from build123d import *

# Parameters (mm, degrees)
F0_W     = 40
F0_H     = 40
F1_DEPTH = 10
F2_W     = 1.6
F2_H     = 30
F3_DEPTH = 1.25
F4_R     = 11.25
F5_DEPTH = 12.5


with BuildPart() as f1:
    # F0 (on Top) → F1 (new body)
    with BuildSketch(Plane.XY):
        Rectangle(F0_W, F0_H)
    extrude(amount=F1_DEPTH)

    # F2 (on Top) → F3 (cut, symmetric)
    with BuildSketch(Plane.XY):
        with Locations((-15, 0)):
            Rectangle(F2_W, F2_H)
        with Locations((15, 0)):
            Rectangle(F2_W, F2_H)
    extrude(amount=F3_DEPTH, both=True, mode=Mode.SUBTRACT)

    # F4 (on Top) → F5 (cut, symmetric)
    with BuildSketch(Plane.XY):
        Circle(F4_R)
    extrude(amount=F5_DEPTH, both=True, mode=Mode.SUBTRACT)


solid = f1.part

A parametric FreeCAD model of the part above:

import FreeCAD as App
import Part
import Sketcher

V = App.Vector
Q = App.Units.Quantity

doc = App.newDocument("Part")
body = doc.addObject("PartDesign::Body", "Body")

# Sketch on XY plane
sketch1 = body.newObject("Sketcher::SketchObject", "Sketch")
sketch1.AttachmentSupport = (doc.getObject("XY_Plane"), [""])
sketch1.MapMode = "FlatFace"
sketch1.addGeometry(Part.LineSegment(V(-20, 20, 0), V(-20, -20, 0)), False)
sketch1.addGeometry(Part.LineSegment(V(-20, -20, 0), V(20, -20, 0)), False)
sketch1.addGeometry(Part.LineSegment(V(20, -20, 0), V(20, 20, 0)), False)
sketch1.addGeometry(Part.LineSegment(V(20, 20, 0), V(-20, 20, 0)), False)
sketch1.addConstraint(Sketcher.Constraint("Coincident", 0, 2, 1, 1))
sketch1.addConstraint(Sketcher.Constraint("Coincident", 1, 2, 2, 1))
sketch1.addConstraint(Sketcher.Constraint("Coincident", 2, 2, 3, 1))
sketch1.addConstraint(Sketcher.Constraint("Coincident", 3, 2, 0, 1))
sketch1.addConstraint(Sketcher.Constraint("Vertical", 0))
sketch1.addConstraint(Sketcher.Constraint("Horizontal", 1))
sketch1.addConstraint(Sketcher.Constraint("Vertical", 2))
sketch1.addConstraint(Sketcher.Constraint("Horizontal", 3))
sketch1.addConstraint(Sketcher.Constraint("Symmetric", 0, 2, 2, 2, -1, 1))
sketch1.addConstraint(Sketcher.Constraint("Equal", 3, 0))
sketch1.addConstraint(Sketcher.Constraint("DistanceX", 1, 1, 1, 2, Q("40 mm")))
pad1 = body.newObject("PartDesign::Pad", "Pad")
pad1.Profile = sketch1
pad1.Length = 10

# Sketch on XY plane
sketch2 = body.newObject("Sketcher::SketchObject", "Sketch001")
sketch2.AttachmentSupport = (doc.getObject("XY_Plane"), [""])
sketch2.MapMode = "FlatFace"
sketch2.addGeometry(Part.LineSegment(V(-15.8, 15, 0), V(-15.8, -15, 0)), False)
sketch2.addGeometry(Part.LineSegment(V(-15.8, -15, 0), V(-14.2, -15, 0)), False)
sketch2.addGeometry(Part.LineSegment(V(-14.2, -15, 0), V(-14.2, 15, 0)), False)
sketch2.addGeometry(Part.LineSegment(V(-14.2, 15, 0), V(-15.8, 15, 0)), False)
sketch2.addGeometry(Part.LineSegment(V(14.2, 15, 0), V(14.2, -15, 0)), False)
sketch2.addGeometry(Part.LineSegment(V(14.2, -15, 0), V(15.8, -15, 0)), False)
sketch2.addGeometry(Part.LineSegment(V(15.8, -15, 0), V(15.8, 15, 0)), False)
sketch2.addGeometry(Part.LineSegment(V(15.8, 15, 0), V(14.2, 15, 0)), False)
sketch2.addConstraint(Sketcher.Constraint("Coincident", 0, 2, 1, 1))
sketch2.addConstraint(Sketcher.Constraint("Coincident", 1, 2, 2, 1))
sketch2.addConstraint(Sketcher.Constraint("Coincident", 2, 2, 3, 1))
sketch2.addConstraint(Sketcher.Constraint("Coincident", 3, 2, 0, 1))
sketch2.addConstraint(Sketcher.Constraint("Coincident", 4, 2, 5, 1))
sketch2.addConstraint(Sketcher.Constraint("Coincident", 5, 2, 6, 1))
sketch2.addConstraint(Sketcher.Constraint("Coincident", 6, 2, 7, 1))
sketch2.addConstraint(Sketcher.Constraint("Coincident", 7, 2, 4, 1))
sketch2.addConstraint(Sketcher.Constraint("Vertical", 0))
sketch2.addConstraint(Sketcher.Constraint("Horizontal", 1))
sketch2.addConstraint(Sketcher.Constraint("Vertical", 2))
sketch2.addConstraint(Sketcher.Constraint("Horizontal", 3))
sketch2.addConstraint(Sketcher.Constraint("Vertical", 4))
sketch2.addConstraint(Sketcher.Constraint("Horizontal", 5))
sketch2.addConstraint(Sketcher.Constraint("Vertical", 6))
sketch2.addConstraint(Sketcher.Constraint("Horizontal", 7))
sketch2.addConstraint(Sketcher.Constraint("Symmetric", 2, 2, 4, 2, -1, 1))
sketch2.addConstraint(Sketcher.Constraint("Symmetric", 0, 2, 6, 2, -1, 1))
sketch2.addConstraint(Sketcher.Constraint("Horizontal", 1, 2, 4, 2))
sketch2.addConstraint(Sketcher.Constraint("DistanceY", 0, 2, 0, 1, Q("30 mm")))
sketch2.addConstraint(Sketcher.Constraint("DistanceX", 1, 1, 1, 2, Q("1.6 mm")))
sketch2.addConstraint(Sketcher.Constraint("DistanceX", 0, 2, 4, 2, Q("30 mm")))
pocket1 = body.newObject("PartDesign::Pocket", "Pocket")
pocket1.Profile = sketch2
pocket1.Length = 2.5
pocket1.Midplane = True

# Sketch on XY plane
sketch3 = body.newObject("Sketcher::SketchObject", "Sketch002")
sketch3.AttachmentSupport = (doc.getObject("XY_Plane"), [""])
sketch3.MapMode = "FlatFace"
sketch3.addGeometry(Part.Circle(V(0, 0, 0), V(0, 0, 1), 11), False)
sketch3.addConstraint(Sketcher.Constraint("Coincident", 0, 3, -1, 1))
sketch3.addConstraint(Sketcher.Constraint("Diameter", 0, Q("22.5 mm")))
pocket2 = body.newObject("PartDesign::Pocket", "Pocket001")
pocket2.Profile = sketch3
pocket2.Length = 25
pocket2.Midplane = True

doc.recompute()
